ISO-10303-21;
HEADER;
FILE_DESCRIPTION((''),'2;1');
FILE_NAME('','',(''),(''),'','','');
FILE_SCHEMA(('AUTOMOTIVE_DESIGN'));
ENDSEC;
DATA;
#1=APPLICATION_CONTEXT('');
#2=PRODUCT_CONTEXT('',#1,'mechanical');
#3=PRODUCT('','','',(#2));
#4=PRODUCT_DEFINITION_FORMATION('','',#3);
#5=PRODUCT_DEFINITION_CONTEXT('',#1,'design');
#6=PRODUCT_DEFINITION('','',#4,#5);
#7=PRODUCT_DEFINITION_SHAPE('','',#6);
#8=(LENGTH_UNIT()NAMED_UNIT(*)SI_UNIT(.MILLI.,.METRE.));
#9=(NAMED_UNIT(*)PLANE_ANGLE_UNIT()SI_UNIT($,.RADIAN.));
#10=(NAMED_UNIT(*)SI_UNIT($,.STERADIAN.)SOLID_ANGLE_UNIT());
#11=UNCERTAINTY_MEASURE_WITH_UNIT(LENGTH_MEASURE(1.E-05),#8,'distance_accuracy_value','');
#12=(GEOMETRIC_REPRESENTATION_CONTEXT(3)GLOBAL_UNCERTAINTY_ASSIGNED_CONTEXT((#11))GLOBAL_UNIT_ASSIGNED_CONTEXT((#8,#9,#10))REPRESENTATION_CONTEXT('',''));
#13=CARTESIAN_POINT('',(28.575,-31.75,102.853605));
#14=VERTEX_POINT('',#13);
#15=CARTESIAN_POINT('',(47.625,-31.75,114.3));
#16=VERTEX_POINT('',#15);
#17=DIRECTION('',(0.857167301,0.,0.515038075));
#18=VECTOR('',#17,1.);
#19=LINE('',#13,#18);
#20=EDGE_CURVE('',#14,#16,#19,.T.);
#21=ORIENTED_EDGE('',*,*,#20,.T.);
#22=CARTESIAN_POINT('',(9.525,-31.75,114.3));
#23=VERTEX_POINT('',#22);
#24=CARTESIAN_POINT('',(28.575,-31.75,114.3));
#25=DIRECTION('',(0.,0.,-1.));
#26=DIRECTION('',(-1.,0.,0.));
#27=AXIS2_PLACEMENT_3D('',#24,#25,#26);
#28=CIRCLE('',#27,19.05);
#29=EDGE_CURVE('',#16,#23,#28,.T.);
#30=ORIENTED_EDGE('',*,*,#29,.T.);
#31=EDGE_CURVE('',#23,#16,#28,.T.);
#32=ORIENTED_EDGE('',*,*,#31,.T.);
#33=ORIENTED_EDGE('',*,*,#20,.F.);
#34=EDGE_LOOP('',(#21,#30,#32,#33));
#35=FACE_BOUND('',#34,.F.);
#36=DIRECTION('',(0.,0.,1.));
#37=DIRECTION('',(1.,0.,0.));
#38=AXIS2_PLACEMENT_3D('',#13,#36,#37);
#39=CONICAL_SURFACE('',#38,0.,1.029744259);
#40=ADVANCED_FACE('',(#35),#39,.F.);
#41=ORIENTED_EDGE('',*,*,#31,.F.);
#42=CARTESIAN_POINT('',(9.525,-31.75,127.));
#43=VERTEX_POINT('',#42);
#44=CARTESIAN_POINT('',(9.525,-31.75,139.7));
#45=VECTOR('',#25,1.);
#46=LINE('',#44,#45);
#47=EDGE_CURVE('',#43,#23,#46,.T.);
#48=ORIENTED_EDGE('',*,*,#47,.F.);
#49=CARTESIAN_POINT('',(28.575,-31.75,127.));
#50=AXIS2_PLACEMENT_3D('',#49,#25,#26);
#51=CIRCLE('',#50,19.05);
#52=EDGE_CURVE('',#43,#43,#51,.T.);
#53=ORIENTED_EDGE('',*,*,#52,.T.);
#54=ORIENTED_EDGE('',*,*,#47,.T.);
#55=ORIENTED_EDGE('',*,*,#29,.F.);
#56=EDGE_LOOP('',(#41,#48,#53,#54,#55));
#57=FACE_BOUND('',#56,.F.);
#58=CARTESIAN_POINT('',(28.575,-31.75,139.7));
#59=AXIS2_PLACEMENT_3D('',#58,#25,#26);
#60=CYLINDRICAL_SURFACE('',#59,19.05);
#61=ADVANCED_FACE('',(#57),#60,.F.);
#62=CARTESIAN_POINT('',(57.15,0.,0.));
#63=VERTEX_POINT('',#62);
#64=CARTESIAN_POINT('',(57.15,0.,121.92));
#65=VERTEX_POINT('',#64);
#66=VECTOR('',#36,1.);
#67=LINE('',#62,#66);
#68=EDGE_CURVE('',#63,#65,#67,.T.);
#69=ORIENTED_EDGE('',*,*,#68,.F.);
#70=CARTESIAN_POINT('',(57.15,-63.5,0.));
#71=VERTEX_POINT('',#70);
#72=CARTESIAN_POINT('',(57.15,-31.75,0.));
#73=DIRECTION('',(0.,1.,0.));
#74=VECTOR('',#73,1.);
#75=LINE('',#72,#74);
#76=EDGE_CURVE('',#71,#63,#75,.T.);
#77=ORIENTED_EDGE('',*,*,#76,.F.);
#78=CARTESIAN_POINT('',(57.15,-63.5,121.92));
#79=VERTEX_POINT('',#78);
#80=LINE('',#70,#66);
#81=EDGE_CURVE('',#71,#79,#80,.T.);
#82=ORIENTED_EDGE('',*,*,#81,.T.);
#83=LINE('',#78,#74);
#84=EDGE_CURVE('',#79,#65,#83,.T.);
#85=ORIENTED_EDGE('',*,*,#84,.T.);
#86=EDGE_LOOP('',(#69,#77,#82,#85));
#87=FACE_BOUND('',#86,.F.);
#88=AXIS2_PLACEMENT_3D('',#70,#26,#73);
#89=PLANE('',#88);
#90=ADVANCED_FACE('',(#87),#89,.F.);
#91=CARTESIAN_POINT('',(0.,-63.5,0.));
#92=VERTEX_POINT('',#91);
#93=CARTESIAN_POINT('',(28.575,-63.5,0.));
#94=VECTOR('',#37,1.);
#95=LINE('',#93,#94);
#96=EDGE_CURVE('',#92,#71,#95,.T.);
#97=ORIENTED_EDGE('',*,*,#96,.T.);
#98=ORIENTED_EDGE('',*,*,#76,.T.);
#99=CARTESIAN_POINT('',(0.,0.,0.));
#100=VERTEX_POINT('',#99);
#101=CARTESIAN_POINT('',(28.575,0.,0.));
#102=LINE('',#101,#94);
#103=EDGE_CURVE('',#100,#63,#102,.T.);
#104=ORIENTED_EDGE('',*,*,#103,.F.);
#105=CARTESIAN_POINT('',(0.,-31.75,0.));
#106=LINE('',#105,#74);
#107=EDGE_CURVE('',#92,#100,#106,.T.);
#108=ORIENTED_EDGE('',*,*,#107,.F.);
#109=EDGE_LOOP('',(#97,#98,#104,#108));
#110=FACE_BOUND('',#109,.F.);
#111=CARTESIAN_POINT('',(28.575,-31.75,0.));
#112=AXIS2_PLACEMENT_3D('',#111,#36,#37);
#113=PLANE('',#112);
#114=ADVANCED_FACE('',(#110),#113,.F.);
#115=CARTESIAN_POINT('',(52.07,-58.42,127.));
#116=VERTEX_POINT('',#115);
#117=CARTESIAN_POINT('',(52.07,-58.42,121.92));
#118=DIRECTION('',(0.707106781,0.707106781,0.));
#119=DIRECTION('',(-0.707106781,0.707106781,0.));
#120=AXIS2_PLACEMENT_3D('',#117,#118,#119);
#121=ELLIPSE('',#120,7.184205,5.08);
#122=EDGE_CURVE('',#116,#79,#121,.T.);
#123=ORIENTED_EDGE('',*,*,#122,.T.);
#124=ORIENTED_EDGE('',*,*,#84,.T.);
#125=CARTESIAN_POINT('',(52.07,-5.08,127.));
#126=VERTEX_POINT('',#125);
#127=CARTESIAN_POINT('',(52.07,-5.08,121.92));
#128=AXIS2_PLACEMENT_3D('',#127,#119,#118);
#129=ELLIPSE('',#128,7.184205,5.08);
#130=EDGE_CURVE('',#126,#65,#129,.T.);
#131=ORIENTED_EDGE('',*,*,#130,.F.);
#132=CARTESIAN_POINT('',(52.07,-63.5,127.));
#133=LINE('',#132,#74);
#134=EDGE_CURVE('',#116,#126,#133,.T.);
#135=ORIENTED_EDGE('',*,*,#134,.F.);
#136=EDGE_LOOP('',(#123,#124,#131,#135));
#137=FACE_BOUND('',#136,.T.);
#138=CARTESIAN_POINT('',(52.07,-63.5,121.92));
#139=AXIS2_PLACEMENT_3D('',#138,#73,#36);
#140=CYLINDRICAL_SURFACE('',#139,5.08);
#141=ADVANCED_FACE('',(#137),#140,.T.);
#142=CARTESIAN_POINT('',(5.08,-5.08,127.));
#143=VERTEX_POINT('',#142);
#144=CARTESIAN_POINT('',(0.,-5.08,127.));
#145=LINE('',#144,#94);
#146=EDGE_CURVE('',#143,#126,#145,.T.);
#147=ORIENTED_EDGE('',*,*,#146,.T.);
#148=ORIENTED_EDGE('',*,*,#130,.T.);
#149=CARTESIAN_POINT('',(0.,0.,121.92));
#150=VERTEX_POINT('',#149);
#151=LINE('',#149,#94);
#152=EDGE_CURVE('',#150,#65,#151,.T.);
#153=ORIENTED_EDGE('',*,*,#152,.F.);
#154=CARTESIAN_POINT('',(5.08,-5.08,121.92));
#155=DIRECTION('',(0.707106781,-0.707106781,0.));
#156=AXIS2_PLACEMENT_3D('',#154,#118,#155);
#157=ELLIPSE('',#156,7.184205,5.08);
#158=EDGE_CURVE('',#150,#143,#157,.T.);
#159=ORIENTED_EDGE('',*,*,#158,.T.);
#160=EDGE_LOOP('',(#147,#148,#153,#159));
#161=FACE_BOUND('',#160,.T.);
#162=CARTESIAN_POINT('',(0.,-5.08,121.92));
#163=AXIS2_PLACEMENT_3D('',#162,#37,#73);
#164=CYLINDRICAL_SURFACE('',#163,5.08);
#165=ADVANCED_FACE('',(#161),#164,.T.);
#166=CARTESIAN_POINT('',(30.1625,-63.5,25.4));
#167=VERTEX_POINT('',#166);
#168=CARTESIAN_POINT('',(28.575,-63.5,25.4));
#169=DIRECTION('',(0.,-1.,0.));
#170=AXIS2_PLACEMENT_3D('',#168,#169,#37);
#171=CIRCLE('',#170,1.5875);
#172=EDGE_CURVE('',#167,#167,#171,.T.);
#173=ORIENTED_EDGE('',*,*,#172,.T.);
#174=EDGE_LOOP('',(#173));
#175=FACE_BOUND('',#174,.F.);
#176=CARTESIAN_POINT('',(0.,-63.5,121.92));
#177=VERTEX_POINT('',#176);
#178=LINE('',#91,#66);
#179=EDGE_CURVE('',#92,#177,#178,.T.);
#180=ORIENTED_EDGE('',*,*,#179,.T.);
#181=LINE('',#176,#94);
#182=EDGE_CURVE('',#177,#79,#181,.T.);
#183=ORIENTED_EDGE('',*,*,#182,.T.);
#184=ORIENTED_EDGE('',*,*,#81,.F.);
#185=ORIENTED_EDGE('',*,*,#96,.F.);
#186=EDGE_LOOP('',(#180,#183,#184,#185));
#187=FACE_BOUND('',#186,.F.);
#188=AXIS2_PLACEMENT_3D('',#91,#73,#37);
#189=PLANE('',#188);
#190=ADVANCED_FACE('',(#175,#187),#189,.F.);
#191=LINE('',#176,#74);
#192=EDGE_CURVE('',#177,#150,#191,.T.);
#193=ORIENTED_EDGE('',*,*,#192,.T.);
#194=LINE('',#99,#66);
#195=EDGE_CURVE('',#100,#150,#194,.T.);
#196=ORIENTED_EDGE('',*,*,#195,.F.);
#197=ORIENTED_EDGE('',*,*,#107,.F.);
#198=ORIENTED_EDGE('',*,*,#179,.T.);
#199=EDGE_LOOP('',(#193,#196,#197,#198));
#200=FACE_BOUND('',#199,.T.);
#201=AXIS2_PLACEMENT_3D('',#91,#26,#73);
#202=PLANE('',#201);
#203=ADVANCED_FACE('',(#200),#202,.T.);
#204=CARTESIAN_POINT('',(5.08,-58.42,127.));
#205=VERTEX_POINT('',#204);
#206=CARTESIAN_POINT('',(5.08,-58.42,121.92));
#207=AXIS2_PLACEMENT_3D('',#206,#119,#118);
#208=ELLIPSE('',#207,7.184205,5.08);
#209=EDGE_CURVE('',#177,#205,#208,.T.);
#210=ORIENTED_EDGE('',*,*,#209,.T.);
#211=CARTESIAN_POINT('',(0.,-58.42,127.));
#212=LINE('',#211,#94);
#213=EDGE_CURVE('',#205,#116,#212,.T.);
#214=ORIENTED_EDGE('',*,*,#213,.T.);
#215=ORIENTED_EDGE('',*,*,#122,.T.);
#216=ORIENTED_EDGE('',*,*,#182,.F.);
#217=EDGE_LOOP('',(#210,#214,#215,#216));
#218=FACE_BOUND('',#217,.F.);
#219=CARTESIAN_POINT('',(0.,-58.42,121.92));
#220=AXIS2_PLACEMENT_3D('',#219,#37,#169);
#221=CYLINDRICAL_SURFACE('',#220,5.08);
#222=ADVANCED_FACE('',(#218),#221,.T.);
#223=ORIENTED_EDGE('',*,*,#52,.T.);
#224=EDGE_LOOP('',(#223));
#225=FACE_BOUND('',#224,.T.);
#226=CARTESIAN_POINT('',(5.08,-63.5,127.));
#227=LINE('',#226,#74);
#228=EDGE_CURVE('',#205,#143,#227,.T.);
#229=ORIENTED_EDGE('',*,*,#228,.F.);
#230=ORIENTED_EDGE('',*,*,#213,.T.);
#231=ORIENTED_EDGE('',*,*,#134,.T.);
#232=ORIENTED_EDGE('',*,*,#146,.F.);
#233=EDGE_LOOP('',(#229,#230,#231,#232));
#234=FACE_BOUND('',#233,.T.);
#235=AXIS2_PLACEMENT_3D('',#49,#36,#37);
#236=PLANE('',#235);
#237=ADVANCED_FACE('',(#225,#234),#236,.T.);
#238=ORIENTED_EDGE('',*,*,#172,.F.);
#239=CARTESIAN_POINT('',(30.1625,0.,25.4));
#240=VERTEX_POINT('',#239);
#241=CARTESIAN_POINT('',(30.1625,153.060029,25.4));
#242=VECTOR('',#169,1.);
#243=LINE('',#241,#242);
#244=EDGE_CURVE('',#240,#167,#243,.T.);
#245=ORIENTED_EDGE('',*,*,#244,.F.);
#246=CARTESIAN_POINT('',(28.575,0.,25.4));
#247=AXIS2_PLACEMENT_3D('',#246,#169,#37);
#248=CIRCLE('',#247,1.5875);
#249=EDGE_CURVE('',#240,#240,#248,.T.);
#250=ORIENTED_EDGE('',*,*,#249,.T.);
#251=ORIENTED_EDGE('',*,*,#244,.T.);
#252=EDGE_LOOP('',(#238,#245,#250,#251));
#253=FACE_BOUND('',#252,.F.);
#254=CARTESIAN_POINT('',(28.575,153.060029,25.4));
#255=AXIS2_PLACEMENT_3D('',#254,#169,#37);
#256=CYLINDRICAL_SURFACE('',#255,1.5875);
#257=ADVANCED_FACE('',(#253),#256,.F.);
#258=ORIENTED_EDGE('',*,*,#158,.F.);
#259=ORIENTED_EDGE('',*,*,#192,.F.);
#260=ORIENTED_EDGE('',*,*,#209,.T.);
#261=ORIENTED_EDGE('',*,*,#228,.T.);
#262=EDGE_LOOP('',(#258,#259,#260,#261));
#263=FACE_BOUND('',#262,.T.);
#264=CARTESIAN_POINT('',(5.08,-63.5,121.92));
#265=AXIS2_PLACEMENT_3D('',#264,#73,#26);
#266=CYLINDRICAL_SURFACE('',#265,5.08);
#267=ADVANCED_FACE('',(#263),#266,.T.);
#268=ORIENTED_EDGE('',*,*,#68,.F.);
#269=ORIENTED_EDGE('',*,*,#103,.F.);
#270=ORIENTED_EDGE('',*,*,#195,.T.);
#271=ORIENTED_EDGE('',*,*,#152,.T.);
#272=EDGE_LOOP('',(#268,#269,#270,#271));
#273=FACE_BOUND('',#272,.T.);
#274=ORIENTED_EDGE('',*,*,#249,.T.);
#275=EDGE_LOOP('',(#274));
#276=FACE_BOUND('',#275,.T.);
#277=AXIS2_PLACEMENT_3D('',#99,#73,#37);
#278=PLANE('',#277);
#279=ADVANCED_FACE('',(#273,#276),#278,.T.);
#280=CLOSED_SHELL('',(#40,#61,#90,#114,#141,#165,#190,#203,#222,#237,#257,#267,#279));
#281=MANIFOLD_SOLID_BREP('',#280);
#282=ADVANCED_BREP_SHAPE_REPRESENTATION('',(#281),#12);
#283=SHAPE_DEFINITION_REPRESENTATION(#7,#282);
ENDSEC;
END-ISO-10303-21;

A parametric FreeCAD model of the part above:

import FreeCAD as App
import Part
import Sketcher

V = App.Vector
Q = App.Units.Quantity


def edges_at(feature, points):
    """Names of the edges that pass closest to the given points."""
    edges = feature.Shape.Edges
    near = lambda p: min(range(len(edges)), key=lambda i: edges[i].distToShape(Part.Vertex(*p))[0])
    return sorted({f"Edge{near(p) + 1}" for p in points})

doc = App.newDocument("Part")
body = doc.addObject("PartDesign::Body", "Body")

sketch1 = body.newObject("Sketcher::SketchObject", "Sketch")
sketch1.AttachmentSupport = (doc.getObject("XY_Plane"), [""])
sketch1.MapMode = "FlatFace"
sketch1.addGeometry([
    Part.LineSegment(V(0, 0, 0), V(0, -64, 0)),
    Part.LineSegment(V(0, -64, 0), V(57, -64, 0)),
    Part.LineSegment(V(57, -64, 0), V(57, 0, 0)),
    Part.LineSegment(V(57, 0, 0), V(0, 0, 0)),
], False)
sketch1.addConstraint([
    Sketcher.Constraint("Coincident", 0, 2, 1, 1),
    Sketcher.Constraint("Coincident", 1, 2, 2, 1),
    Sketcher.Constraint("Coincident", 2, 2, 3, 1),
    Sketcher.Constraint("Coincident", 3, 2, 0, 1),
    Sketcher.Constraint("Vertical", 0),
    Sketcher.Constraint("Horizontal", 1),
    Sketcher.Constraint("Vertical", 2),
    Sketcher.Constraint("Horizontal", 3),
    Sketcher.Constraint("Coincident", 3, 2, -1, 1),
    Sketcher.Constraint("DistanceY", 0, 2, 0, 1, Q("2.5 in")),
    Sketcher.Constraint("DistanceX", 1, 1, 1, 2, Q("2.25 in")),
])
pad1 = body.newObject("PartDesign::Pad", "Pad")
pad1.Profile = sketch1
pad1.Length = Q("5 in")

sketch2 = body.newObject("Sketcher::SketchObject", "Sketch001")
sketch2.AttachmentSupport = (doc.getObject("XY_Plane"), [""])
sketch2.MapMode = "FlatFace"
sketch2.AttachmentOffset = App.Placement(V(0, 0, 5 * 25.4), App.Rotation())
sketch2.addGeometry(Part.Circle(V(29, -32, 0), V(0, 0, 1), 19), False)
sketch2.addConstraint([
    Sketcher.Constraint("Diameter", 0, Q("1.5 in")),
    Sketcher.Constraint("DistanceY", 0, 3, -1, 1, Q("1.25 in")),
    Sketcher.Constraint("DistanceX", -1, 1, 0, 3, Q("1.125 in")),
])
doc.recompute()
hole = body.newObject("PartDesign::Hole", "Hole")
hole.Profile = sketch2
hole.ThreadType = "None"
hole.Diameter = Q("1.5 in")
hole.DepthType = "Dimension"
hole.Depth = Q("0.5 in")
hole.DrillPoint = "Angled"
hole.DrillPointAngle = 118
doc.recompute()

fillet = body.newObject("PartDesign::Fillet", "Fillet")
fillet.Base = (hole, edges_at(hole, [
    (57.15, -31.75, 127),
    (28.575, 0, 127),
    (0, -31.75, 127),
    (28.575, -63.5, 127),
]))
fillet.Radius = Q("0.2 in")

sketch3 = body.newObject("Sketcher::SketchObject", "Sketch002")
sketch3.AttachmentSupport = (doc.getObject("XZ_Plane"), [""])
sketch3.MapMode = "FlatFace"
sketch3.addGeometry(Part.Circle(V(28.6, 25.4, 0), V(0, 0, 1), 1.6), False)
sketch3.addConstraint([
    Sketcher.Constraint("Diameter", 0, Q("0.125 in")),
    Sketcher.Constraint("DistanceY", -1, 1, 0, 3, Q("1 in")),
    Sketcher.Constraint("DistanceX", -1, 1, 0, 3, Q("1.125 in")),
])
doc.recompute()
hole2 = body.newObject("PartDesign::Hole", "Hole001")
hole2.Profile = sketch3
hole2.ThreadType = "None"
hole2.Diameter = Q("0.125 in")
hole2.DepthType = "ThroughAll"
hole2.Reversed = True

doc.recompute()
